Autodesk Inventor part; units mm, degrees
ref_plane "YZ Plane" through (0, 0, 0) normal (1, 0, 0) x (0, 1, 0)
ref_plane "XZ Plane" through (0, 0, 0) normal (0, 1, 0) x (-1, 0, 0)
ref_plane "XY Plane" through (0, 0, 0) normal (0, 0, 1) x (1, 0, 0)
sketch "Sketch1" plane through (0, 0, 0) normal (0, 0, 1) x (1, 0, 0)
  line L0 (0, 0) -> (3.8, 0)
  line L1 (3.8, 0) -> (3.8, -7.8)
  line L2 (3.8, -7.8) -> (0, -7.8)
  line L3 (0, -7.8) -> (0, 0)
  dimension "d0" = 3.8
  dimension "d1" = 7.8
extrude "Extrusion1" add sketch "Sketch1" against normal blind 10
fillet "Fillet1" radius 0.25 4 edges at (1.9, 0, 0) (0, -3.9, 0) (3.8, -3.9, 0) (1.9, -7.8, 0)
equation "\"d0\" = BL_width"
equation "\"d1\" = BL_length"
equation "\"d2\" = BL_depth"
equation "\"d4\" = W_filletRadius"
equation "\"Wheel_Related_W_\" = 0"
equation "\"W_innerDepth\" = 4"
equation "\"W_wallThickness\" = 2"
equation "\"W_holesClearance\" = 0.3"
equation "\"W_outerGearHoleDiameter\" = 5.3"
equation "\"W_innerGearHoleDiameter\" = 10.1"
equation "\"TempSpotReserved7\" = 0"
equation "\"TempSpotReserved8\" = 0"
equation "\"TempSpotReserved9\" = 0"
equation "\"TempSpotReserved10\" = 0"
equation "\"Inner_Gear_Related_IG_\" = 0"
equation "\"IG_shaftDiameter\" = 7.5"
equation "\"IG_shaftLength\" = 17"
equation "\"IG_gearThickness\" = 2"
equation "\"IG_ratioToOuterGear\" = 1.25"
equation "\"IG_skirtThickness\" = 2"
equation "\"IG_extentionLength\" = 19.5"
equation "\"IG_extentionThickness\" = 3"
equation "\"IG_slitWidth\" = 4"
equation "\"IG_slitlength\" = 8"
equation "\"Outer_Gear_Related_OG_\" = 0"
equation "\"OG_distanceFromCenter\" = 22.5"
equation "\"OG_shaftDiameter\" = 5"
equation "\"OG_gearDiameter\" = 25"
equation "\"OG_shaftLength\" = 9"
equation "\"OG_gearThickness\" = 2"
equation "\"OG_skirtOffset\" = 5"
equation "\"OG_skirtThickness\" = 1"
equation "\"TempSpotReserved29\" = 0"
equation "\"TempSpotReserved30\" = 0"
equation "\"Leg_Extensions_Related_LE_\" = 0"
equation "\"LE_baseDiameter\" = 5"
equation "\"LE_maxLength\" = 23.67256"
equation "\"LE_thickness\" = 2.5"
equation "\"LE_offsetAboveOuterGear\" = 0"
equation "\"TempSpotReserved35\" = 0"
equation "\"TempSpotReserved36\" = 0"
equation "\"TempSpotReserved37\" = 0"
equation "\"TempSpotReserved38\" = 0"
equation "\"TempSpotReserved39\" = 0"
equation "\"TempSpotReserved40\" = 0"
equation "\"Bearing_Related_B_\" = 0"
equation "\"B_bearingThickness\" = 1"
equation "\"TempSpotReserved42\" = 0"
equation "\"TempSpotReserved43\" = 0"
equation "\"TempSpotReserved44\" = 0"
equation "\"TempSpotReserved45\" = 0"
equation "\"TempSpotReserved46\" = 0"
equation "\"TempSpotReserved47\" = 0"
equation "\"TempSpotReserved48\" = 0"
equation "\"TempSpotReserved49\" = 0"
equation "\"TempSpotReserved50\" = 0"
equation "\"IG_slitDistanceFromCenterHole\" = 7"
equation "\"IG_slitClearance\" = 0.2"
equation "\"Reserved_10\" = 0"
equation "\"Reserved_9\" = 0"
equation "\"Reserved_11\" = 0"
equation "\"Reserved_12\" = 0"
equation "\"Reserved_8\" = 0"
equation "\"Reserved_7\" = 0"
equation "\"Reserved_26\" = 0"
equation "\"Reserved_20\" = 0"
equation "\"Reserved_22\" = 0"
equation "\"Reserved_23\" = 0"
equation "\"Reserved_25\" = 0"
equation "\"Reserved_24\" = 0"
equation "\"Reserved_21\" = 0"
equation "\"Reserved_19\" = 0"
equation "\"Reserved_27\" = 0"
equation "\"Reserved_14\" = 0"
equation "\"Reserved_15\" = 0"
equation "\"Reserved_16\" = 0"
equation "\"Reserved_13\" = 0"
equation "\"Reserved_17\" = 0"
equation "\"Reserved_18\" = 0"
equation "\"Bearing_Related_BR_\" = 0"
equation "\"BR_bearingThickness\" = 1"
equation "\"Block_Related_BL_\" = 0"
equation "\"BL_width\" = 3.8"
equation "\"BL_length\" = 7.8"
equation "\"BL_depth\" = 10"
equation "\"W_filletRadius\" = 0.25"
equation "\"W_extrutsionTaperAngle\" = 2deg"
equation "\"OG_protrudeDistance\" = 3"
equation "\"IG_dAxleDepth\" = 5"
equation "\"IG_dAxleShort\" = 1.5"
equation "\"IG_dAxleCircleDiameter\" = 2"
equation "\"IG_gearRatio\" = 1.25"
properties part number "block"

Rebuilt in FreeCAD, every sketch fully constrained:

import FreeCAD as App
import Part
import Sketcher

V = App.Vector
Q = App.Units.Quantity


def edges_at(feature, points):
    """Names of the edges that pass closest to the given points."""
    edges = feature.Shape.Edges
    near = lambda p: min(range(len(edges)), key=lambda i: edges[i].distToShape(Part.Vertex(*p))[0])
    return sorted({f"Edge{near(p) + 1}" for p in points})

doc = App.newDocument("Part")
body = doc.addObject("PartDesign::Body", "Body")

sketch1 = doc.addObject("Sketcher::SketchObject", "Sketch")
body.addObject(sketch1)
sketch1.AttachmentSupport = (doc.XY_Plane, [""])
sketch1.MapMode = "FlatFace"
sketch1.addGeometry([
    Part.LineSegment(V(3.8, 0, 0), V(0, 0, 0)),
    Part.LineSegment(V(0, 0, 0), V(0, -7.8, 0)),
    Part.LineSegment(V(0, -7.8, 0), V(3.8, -7.8, 0)),
    Part.LineSegment(V(3.8, -7.8, 0), V(3.8, 0, 0)),
], False)
sketch1.addConstraint([
    Sketcher.Constraint("Coincident", 0, 2, 1, 1),
    Sketcher.Constraint("Coincident", 1, 2, 2, 1),
    Sketcher.Constraint("Coincident", 2, 2, 3, 1),
    Sketcher.Constraint("Coincident", 3, 2, 0, 1),
    Sketcher.Constraint("Horizontal", 0),
    Sketcher.Constraint("Vertical", 1),
    Sketcher.Constraint("Horizontal", 2),
    Sketcher.Constraint("Vertical", 3),
    Sketcher.Constraint("Coincident", 0, 2, -1, 1),
    Sketcher.Constraint("DistanceX", 0, 2, 0, 1, Q("3.8 mm")),
    Sketcher.Constraint("DistanceY", 1, 2, 1, 1, Q("7.8 mm")),
])
pad1 = doc.addObject("PartDesign::Pad", "Pad")
body.addObject(pad1)
pad1.Profile = sketch1
pad1.Length = 10
pad1.Reversed = True
doc.recompute()

fillet = doc.addObject("PartDesign::Fillet", "Fillet")
body.addObject(fillet)
fillet.Base = (pad1, edges_at(pad1, [
    (1.9, 0, 0),
    (0, -3.9, 0),
    (3.8, -3.9, 0),
    (1.9, -7.8, 0),
]))
fillet.Radius = 0.25

doc.recompute()
